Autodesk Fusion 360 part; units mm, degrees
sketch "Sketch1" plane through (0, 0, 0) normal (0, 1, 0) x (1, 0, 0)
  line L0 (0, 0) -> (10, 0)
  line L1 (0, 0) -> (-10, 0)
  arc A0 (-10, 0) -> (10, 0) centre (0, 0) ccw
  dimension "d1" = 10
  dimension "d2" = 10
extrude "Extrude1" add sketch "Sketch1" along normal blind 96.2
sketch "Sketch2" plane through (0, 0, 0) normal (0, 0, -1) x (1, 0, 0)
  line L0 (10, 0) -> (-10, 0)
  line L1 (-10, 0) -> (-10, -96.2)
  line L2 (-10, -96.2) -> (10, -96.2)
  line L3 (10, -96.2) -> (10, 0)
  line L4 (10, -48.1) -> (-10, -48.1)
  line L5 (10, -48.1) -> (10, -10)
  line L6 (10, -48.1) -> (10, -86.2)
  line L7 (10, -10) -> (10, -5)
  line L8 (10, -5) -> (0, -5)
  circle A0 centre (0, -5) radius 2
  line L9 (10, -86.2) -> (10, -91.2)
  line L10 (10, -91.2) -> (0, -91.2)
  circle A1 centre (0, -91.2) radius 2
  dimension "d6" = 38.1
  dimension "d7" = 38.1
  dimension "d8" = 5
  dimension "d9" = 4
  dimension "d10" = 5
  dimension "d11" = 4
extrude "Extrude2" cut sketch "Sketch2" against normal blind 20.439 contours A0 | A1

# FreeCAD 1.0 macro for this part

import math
import FreeCAD as App
import Part
import Sketcher

V = App.Vector
Q = App.Units.Quantity

doc = App.newDocument("Part")
body = doc.addObject("PartDesign::Body", "Body")

# Sketch on XZ plane
sketch1 = doc.addObject("Sketcher::SketchObject", "Sketch")
body.addObject(sketch1)
sketch1.AttachmentSupport = (doc.XZ_Plane, [""])
sketch1.MapMode = "FlatFace"
sketch1.addGeometry([
    Part.LineSegment(V(10, 0, 0), V(-10, 0, 0)),
    Part.ArcOfCircle(Part.Circle(V(0, 0, 0), V(0, 0, 1), 10), math.radians(0), math.radians(180)),
], False)
sketch1.addConstraint([
    Sketcher.Constraint("Coincident", 0, 1, 1, 1),
    Sketcher.Constraint("Coincident", 1, 2, 0, 2),
    Sketcher.Constraint("Horizontal", 0),
    Sketcher.Constraint("Coincident", 1, 3, -1, 1),
    Sketcher.Constraint("PointOnObject", 0, 1, -1),
    Sketcher.Constraint("Radius", 1, Q("10 mm")),
])
pad1 = doc.addObject("PartDesign::Pad", "Pad")
body.addObject(pad1)
pad1.Profile = sketch1
pad1.Length = 96.2
pad1.Reversed = True

# Sketch on XY plane
sketch2 = doc.addObject("Sketcher::SketchObject", "Sketch001")
body.addObject(sketch2)
sketch2.AttachmentSupport = (doc.XY_Plane, [""])
sketch2.MapMode = "FlatFace"
sketch2.addGeometry([
    Part.Circle(V(0, 5, 0), V(0, 0, 1), 2),
    Part.Circle(V(0, 91.2, 0), V(0, 0, 1), 2),
], False)
sketch2.addConstraint([
    Sketcher.Constraint("Equal", 0, 1),
    Sketcher.Constraint("PointOnObject", 0, 3, -2),
    Sketcher.Constraint("PointOnObject", 1, 3, -2),
    Sketcher.Constraint("Diameter", 0, Q("4 mm")),
    Sketcher.Constraint("DistanceY", -1, 1, 0, 3, Q("5 mm")),
    Sketcher.Constraint("DistanceY", -1, 1, 1, 3, Q("91.2 mm")),
])
pocket1 = doc.addObject("PartDesign::Pocket", "Pocket")
body.addObject(pocket1)
pocket1.Profile = sketch2
pocket1.Length = 20.439
pocket1.Reversed = True

doc.recompute()
